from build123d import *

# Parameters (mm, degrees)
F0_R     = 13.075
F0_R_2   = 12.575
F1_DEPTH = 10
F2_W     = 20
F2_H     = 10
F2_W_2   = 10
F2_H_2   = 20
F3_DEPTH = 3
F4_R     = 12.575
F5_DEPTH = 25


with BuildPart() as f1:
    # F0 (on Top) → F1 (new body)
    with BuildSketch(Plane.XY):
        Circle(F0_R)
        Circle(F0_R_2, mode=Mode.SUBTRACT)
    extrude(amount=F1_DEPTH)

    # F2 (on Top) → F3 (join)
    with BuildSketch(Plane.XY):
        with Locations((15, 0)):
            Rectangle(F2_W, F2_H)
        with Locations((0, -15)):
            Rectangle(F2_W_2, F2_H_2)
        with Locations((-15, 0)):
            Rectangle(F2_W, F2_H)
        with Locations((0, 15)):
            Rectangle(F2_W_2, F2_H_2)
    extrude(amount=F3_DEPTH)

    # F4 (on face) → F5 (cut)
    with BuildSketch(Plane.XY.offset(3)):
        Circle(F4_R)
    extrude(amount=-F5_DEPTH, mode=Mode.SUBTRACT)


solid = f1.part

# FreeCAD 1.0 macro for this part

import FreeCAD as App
import Part
import Sketcher
Q = App.Units.Quantity

doc = App.newDocument("Part")
body = doc.addObject("PartDesign::Body", "Body")

sketch1 = body.newObject("Sketcher::SketchObject", "Sketch")
sketch1.AttachmentSupport = (doc.getObject("XY_Plane"), [""])
sketch1.MapMode = "FlatFace"
sketch1.addGeometry([
    Part.Circle(App.Vector(0, 0, 0), App.Vector(0, 0, 1), 13.075),
    Part.Circle(App.Vector(0, 0, 0), App.Vector(0, 0, 1), 12.575),
], False)
sketch1.addConstraint([
    Sketcher.Constraint("Coincident", 0, 3, -1, 1),
    Sketcher.Constraint("Coincident", 1, 3, -1, 1),
    Sketcher.Constraint("Diameter", 0, Q("26.15 mm")),
    Sketcher.Constraint("Diameter", 1, Q("25.15 mm")),
])
pad1 = body.newObject("PartDesign::Pad", "Pad")
pad1.Profile = sketch1
pad1.Length = 10

sketch2 = body.newObject("Sketcher::SketchObject", "Sketch001")
sketch2.AttachmentSupport = (doc.getObject("XY_Plane"), [""])
sketch2.MapMode = "FlatFace"
sketch2.addGeometry([
    Part.LineSegment(App.Vector(5, 5, 0), App.Vector(5, -5, 0)),
    Part.LineSegment(App.Vector(5, -5, 0), App.Vector(25, -5, 0)),
    Part.LineSegment(App.Vector(25, -5, 0), App.Vector(25, 5, 0)),
    Part.LineSegment(App.Vector(25, 5, 0), App.Vector(5, 5, 0)),
    Part.LineSegment(App.Vector(-5, -5, 0), App.Vector(-5, -25, 0)),
    Part.LineSegment(App.Vector(-5, -25, 0), App.Vector(5, -25, 0)),
    Part.LineSegment(App.Vector(5, -25, 0), App.Vector(5, -5, 0)),
    Part.LineSegment(App.Vector(5, -5, 0), App.Vector(-5, -5, 0)),
    Part.LineSegment(App.Vector(-25, 5, 0), App.Vector(-25, -5, 0)),
    Part.LineSegment(App.Vector(-25, -5, 0), App.Vector(-5, -5, 0)),
    Part.LineSegment(App.Vector(-5, -5, 0), App.Vector(-5, 5, 0)),
    Part.LineSegment(App.Vector(-5, 5, 0), App.Vector(-25, 5, 0)),
    Part.LineSegment(App.Vector(-5, 25, 0), App.Vector(-5, 5, 0)),
    Part.LineSegment(App.Vector(-5, 5, 0), App.Vector(5, 5, 0)),
    Part.LineSegment(App.Vector(5, 5, 0), App.Vector(5, 25, 0)),
    Part.LineSegment(App.Vector(5, 25, 0), App.Vector(-5, 25, 0)),
], False)
sketch2.addConstraint([
    Sketcher.Constraint("Coincident", 0, 2, 1, 1),
    Sketcher.Constraint("Coincident", 1, 2, 2, 1),
    Sketcher.Constraint("Coincident", 2, 2, 3, 1),
    Sketcher.Constraint("Coincident", 3, 2, 0, 1),
    Sketcher.Constraint("Coincident", 4, 2, 5, 1),
    Sketcher.Constraint("Coincident", 5, 2, 6, 1),
    Sketcher.Constraint("Coincident", 6, 2, 7, 1),
    Sketcher.Constraint("Coincident", 7, 2, 4, 1),
    Sketcher.Constraint("Coincident", 8, 2, 9, 1),
    Sketcher.Constraint("Coincident", 9, 2, 10, 1),
    Sketcher.Constraint("Coincident", 10, 2, 11, 1),
    Sketcher.Constraint("Coincident", 11, 2, 8, 1),
    Sketcher.Constraint("Coincident", 12, 2, 13, 1),
    Sketcher.Constraint("Coincident", 13, 2, 14, 1),
    Sketcher.Constraint("Coincident", 14, 2, 15, 1),
    Sketcher.Constraint("Coincident", 15, 2, 12, 1),
    Sketcher.Constraint("Vertical", 0),
    Sketcher.Constraint("Horizontal", 1),
    Sketcher.Constraint("Vertical", 2),
    Sketcher.Constraint("Horizontal", 3),
    Sketcher.Constraint("Vertical", 4),
    Sketcher.Constraint("Horizontal", 5),
    Sketcher.Constraint("Vertical", 6),
    Sketcher.Constraint("Horizontal", 7),
    Sketcher.Constraint("Vertical", 8),
    Sketcher.Constraint("Horizontal", 9),
    Sketcher.Constraint("Vertical", 10),
    Sketcher.Constraint("Horizontal", 11),
    Sketcher.Constraint("Vertical", 12),
    Sketcher.Constraint("Horizontal", 13),
    Sketcher.Constraint("Vertical", 14),
    Sketcher.Constraint("Horizontal", 15),
    Sketcher.Constraint("Coincident", 6, 2, 0, 2),
    Sketcher.Constraint("Coincident", 9, 2, 7, 2),
    Sketcher.Constraint("Coincident", 12, 2, 10, 2),
    Sketcher.Constraint("Coincident", 13, 2, 3, 2),
    Sketcher.Constraint("Symmetric", 3, 2, 7, 2, -1, 1),
    Sketcher.Constraint("Equal", 3, 9),
    Sketcher.Constraint("Equal", 15, 0),
    Sketcher.Constraint("Equal", 11, 4),
    Sketcher.Constraint("Equal", 6, 12),
    Sketcher.Constraint("DistanceX", 1, 1, 1, 2, Q("20 mm")),
    Sketcher.Constraint("DistanceX", 5, 1, 5, 2, Q("10 mm")),
])
pad2 = body.newObject("PartDesign::Pad", "Pad001")
pad2.Profile = sketch2
pad2.Length = 3

sketch3 = body.newObject("Sketcher::SketchObject", "Sketch002")
sketch3.AttachmentSupport = (doc.getObject("XY_Plane"), [""])
sketch3.MapMode = "FlatFace"
sketch3.AttachmentOffset = App.Placement(App.Vector(0, 0, 3), App.Rotation())
sketch3.addGeometry(Part.Circle(App.Vector(0, 0, 0), App.Vector(0, 0, 1), 12.575), False)
sketch3.addConstraint([
    Sketcher.Constraint("Coincident", 0, 3, -1, 1),
    Sketcher.Constraint("Diameter", 0, Q("25.15 mm")),
])
pocket1 = body.newObject("PartDesign::Pocket", "Pocket")
pocket1.Profile = sketch3
pocket1.Length = 25

doc.recompute()
